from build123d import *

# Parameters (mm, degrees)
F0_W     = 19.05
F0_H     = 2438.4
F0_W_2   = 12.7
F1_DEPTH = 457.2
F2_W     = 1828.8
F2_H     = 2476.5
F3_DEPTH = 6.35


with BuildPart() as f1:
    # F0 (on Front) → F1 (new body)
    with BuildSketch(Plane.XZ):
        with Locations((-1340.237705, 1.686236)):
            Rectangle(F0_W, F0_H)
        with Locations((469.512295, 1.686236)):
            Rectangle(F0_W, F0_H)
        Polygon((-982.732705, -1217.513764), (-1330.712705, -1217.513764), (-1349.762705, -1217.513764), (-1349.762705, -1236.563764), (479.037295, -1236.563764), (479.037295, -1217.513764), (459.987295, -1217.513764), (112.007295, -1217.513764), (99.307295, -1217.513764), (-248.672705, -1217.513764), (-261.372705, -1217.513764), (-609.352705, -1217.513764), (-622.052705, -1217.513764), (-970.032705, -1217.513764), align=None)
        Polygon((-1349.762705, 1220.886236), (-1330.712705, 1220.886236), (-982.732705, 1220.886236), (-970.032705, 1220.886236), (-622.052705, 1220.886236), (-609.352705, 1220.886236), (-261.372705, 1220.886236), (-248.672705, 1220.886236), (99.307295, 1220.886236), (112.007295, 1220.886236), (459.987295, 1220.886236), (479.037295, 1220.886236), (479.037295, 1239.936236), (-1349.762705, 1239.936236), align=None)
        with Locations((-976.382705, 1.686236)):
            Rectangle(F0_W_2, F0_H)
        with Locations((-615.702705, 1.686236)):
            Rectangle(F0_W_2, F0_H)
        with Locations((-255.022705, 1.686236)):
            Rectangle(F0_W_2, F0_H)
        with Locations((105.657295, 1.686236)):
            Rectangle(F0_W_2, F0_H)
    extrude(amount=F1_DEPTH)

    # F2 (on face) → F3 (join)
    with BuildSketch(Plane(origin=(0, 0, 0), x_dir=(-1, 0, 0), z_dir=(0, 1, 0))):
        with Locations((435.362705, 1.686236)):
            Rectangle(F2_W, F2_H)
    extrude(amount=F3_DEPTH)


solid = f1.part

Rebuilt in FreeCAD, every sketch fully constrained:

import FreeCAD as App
import Part
import Sketcher

V = App.Vector
Q = App.Units.Quantity


def add_polygon(sketch, points):
    """Adds a closed chain of lines whose ends are joined by coincident constraints."""
    first, n = sketch.GeometryCount, len(points)
    for a, b in zip(points, points[1:] + points[:1]):
        sketch.addGeometry(Part.LineSegment(App.Vector(*a, 0), App.Vector(*b, 0)), False)
    for i in range(n):
        sketch.addConstraint(Sketcher.Constraint("Coincident", first + i, 2, first + (i + 1) % n, 1))

doc = App.newDocument("Part")
body = doc.addObject("PartDesign::Body", "Body")

# Sketch on XZ plane
sketch1 = body.newObject("Sketcher::SketchObject", "Sketch")
sketch1.AttachmentSupport = (doc.getObject("XZ_Plane"), [""])
sketch1.MapMode = "FlatFace"
add_polygon(sketch1, [(-1349.762705, -1236.563764), (479.037295, -1236.563764), (479.037295, 1239.936236), (-1349.762705, 1239.936236)])  # lines 0-3
add_polygon(sketch1, [(459.987295, 1220.886236), (459.987295, -1217.513764), (112.007295, -1217.513764), (112.007295, 1220.886236)])  # lines 4-7
add_polygon(sketch1, [(99.307295, -1217.513764), (-248.672705, -1217.513764), (-248.672705, 1220.886236), (99.307295, 1220.886236)])  # lines 8-11
add_polygon(sketch1, [(-261.372705, -1217.513764), (-609.352705, -1217.513764), (-609.352705, 1220.886236), (-261.372705, 1220.886236)])  # lines 12-15
add_polygon(sketch1, [(-622.052705, -1217.513764), (-970.032705, -1217.513764), (-970.032705, 1220.886236), (-622.052705, 1220.886236)])  # lines 16-19
add_polygon(sketch1, [(-982.732705, -1217.513764), (-1330.712705, -1217.513764), (-1330.712705, 1220.886236), (-982.732705, 1220.886236)])  # lines 20-23
sketch1.addConstraint([
    Sketcher.Constraint("Horizontal", 0),
    Sketcher.Constraint("Vertical", 1),
    Sketcher.Constraint("Horizontal", 2),
    Sketcher.Constraint("Vertical", 3),
    Sketcher.Constraint("Vertical", 4),
    Sketcher.Constraint("Horizontal", 5),
    Sketcher.Constraint("Vertical", 6),
    Sketcher.Constraint("Horizontal", 7),
    Sketcher.Constraint("Horizontal", 8),
    Sketcher.Constraint("Vertical", 9),
    Sketcher.Constraint("Horizontal", 10),
    Sketcher.Constraint("Vertical", 11),
    Sketcher.Constraint("Horizontal", 12),
    Sketcher.Constraint("Vertical", 13),
    Sketcher.Constraint("Horizontal", 14),
    Sketcher.Constraint("Vertical", 15),
    Sketcher.Constraint("Horizontal", 16),
    Sketcher.Constraint("Vertical", 17),
    Sketcher.Constraint("Horizontal", 18),
    Sketcher.Constraint("Vertical", 19),
    Sketcher.Constraint("Horizontal", 20),
    Sketcher.Constraint("Vertical", 21),
    Sketcher.Constraint("Horizontal", 22),
    Sketcher.Constraint("Vertical", 23),
    Sketcher.Constraint("Horizontal", 5, 2, 8, 2),
    Sketcher.Constraint("Horizontal", 7, 2, 9, 2),
    Sketcher.Constraint("Horizontal", 11, 2, 12, 2),
    Sketcher.Constraint("Horizontal", 10, 2, 13, 2),
    Sketcher.Constraint("Horizontal", 15, 2, 16, 2),
    Sketcher.Constraint("Horizontal", 14, 2, 17, 2),
    Sketcher.Constraint("Horizontal", 19, 2, 20, 2),
    Sketcher.Constraint("Horizontal", 18, 2, 21, 2),
    Sketcher.Constraint("Equal", 7, 8),
    Sketcher.Constraint("Equal", 10, 12),
    Sketcher.Constraint("Equal", 14, 16),
    Sketcher.Constraint("Equal", 18, 20),
    Sketcher.Constraint("DistanceX", 0, 1, 0, 2, Q("72 in")),
    Sketcher.Constraint("DistanceY", 4, 2, 4, 1, Q("96 in")),
    Sketcher.Constraint("DistanceX", 5, 2, 5, 1, Q("13.7 in")),
    Sketcher.Constraint("DistanceY", 1, 1, 1, 2, Q("97.5 in")),
    Sketcher.Constraint("DistanceX", 8, 2, 5, 2, Q("14.2 in")),
    Sketcher.Constraint("DistanceX", 12, 2, 8, 2, Q("14.2 in")),
    Sketcher.Constraint("DistanceX", 16, 2, 12, 2, Q("14.2 in")),
    Sketcher.Constraint("DistanceX", 20, 2, 16, 2, Q("14.2 in")),
    Sketcher.Constraint("DistanceX", 4, 2, 0, 2, Q("0.75 in")),
    Sketcher.Constraint("DistanceY", 0, 2, 4, 2, Q("0.75 in")),
    Sketcher.Constraint("DistanceX", -1, 1, 0, 2, 479.037295),
    Sketcher.Constraint("DistanceY", 0, 2, -1, 1, 1236.563764),
])
pad1 = body.newObject("PartDesign::Pad", "Pad")
pad1.Profile = sketch1
pad1.Length = Q("18 in")

# Sketch on XZ plane
sketch2 = body.newObject("Sketcher::SketchObject", "Sketch001")
sketch2.AttachmentSupport = (doc.getObject("XZ_Plane"), [""])
sketch2.MapMode = "FlatFace"
add_polygon(sketch2, [(479.037295, 1239.936236), (479.037295, -1236.563764), (-1349.762705, -1236.563764), (-1349.762705, 1239.936236)])  # lines 0-3
sketch2.addConstraint([
    Sketcher.Constraint("Vertical", 0),
    Sketcher.Constraint("Horizontal", 1),
    Sketcher.Constraint("Vertical", 2),
    Sketcher.Constraint("Horizontal", 3),
    Sketcher.Constraint("DistanceX", 1, 2, 1, 1, Q("72 in")),
    Sketcher.Constraint("DistanceY", 0, 2, 0, 1, Q("97.5 in")),
    Sketcher.Constraint("DistanceX", -1, 1, 0, 2, 479.037295),
    Sketcher.Constraint("DistanceY", 0, 2, -1, 1, 1236.563764),
])
pad2 = body.newObject("PartDesign::Pad", "Pad001")
pad2.Profile = sketch2
pad2.Length = Q("0.25 in")
pad2.Reversed = True

doc.recompute()
